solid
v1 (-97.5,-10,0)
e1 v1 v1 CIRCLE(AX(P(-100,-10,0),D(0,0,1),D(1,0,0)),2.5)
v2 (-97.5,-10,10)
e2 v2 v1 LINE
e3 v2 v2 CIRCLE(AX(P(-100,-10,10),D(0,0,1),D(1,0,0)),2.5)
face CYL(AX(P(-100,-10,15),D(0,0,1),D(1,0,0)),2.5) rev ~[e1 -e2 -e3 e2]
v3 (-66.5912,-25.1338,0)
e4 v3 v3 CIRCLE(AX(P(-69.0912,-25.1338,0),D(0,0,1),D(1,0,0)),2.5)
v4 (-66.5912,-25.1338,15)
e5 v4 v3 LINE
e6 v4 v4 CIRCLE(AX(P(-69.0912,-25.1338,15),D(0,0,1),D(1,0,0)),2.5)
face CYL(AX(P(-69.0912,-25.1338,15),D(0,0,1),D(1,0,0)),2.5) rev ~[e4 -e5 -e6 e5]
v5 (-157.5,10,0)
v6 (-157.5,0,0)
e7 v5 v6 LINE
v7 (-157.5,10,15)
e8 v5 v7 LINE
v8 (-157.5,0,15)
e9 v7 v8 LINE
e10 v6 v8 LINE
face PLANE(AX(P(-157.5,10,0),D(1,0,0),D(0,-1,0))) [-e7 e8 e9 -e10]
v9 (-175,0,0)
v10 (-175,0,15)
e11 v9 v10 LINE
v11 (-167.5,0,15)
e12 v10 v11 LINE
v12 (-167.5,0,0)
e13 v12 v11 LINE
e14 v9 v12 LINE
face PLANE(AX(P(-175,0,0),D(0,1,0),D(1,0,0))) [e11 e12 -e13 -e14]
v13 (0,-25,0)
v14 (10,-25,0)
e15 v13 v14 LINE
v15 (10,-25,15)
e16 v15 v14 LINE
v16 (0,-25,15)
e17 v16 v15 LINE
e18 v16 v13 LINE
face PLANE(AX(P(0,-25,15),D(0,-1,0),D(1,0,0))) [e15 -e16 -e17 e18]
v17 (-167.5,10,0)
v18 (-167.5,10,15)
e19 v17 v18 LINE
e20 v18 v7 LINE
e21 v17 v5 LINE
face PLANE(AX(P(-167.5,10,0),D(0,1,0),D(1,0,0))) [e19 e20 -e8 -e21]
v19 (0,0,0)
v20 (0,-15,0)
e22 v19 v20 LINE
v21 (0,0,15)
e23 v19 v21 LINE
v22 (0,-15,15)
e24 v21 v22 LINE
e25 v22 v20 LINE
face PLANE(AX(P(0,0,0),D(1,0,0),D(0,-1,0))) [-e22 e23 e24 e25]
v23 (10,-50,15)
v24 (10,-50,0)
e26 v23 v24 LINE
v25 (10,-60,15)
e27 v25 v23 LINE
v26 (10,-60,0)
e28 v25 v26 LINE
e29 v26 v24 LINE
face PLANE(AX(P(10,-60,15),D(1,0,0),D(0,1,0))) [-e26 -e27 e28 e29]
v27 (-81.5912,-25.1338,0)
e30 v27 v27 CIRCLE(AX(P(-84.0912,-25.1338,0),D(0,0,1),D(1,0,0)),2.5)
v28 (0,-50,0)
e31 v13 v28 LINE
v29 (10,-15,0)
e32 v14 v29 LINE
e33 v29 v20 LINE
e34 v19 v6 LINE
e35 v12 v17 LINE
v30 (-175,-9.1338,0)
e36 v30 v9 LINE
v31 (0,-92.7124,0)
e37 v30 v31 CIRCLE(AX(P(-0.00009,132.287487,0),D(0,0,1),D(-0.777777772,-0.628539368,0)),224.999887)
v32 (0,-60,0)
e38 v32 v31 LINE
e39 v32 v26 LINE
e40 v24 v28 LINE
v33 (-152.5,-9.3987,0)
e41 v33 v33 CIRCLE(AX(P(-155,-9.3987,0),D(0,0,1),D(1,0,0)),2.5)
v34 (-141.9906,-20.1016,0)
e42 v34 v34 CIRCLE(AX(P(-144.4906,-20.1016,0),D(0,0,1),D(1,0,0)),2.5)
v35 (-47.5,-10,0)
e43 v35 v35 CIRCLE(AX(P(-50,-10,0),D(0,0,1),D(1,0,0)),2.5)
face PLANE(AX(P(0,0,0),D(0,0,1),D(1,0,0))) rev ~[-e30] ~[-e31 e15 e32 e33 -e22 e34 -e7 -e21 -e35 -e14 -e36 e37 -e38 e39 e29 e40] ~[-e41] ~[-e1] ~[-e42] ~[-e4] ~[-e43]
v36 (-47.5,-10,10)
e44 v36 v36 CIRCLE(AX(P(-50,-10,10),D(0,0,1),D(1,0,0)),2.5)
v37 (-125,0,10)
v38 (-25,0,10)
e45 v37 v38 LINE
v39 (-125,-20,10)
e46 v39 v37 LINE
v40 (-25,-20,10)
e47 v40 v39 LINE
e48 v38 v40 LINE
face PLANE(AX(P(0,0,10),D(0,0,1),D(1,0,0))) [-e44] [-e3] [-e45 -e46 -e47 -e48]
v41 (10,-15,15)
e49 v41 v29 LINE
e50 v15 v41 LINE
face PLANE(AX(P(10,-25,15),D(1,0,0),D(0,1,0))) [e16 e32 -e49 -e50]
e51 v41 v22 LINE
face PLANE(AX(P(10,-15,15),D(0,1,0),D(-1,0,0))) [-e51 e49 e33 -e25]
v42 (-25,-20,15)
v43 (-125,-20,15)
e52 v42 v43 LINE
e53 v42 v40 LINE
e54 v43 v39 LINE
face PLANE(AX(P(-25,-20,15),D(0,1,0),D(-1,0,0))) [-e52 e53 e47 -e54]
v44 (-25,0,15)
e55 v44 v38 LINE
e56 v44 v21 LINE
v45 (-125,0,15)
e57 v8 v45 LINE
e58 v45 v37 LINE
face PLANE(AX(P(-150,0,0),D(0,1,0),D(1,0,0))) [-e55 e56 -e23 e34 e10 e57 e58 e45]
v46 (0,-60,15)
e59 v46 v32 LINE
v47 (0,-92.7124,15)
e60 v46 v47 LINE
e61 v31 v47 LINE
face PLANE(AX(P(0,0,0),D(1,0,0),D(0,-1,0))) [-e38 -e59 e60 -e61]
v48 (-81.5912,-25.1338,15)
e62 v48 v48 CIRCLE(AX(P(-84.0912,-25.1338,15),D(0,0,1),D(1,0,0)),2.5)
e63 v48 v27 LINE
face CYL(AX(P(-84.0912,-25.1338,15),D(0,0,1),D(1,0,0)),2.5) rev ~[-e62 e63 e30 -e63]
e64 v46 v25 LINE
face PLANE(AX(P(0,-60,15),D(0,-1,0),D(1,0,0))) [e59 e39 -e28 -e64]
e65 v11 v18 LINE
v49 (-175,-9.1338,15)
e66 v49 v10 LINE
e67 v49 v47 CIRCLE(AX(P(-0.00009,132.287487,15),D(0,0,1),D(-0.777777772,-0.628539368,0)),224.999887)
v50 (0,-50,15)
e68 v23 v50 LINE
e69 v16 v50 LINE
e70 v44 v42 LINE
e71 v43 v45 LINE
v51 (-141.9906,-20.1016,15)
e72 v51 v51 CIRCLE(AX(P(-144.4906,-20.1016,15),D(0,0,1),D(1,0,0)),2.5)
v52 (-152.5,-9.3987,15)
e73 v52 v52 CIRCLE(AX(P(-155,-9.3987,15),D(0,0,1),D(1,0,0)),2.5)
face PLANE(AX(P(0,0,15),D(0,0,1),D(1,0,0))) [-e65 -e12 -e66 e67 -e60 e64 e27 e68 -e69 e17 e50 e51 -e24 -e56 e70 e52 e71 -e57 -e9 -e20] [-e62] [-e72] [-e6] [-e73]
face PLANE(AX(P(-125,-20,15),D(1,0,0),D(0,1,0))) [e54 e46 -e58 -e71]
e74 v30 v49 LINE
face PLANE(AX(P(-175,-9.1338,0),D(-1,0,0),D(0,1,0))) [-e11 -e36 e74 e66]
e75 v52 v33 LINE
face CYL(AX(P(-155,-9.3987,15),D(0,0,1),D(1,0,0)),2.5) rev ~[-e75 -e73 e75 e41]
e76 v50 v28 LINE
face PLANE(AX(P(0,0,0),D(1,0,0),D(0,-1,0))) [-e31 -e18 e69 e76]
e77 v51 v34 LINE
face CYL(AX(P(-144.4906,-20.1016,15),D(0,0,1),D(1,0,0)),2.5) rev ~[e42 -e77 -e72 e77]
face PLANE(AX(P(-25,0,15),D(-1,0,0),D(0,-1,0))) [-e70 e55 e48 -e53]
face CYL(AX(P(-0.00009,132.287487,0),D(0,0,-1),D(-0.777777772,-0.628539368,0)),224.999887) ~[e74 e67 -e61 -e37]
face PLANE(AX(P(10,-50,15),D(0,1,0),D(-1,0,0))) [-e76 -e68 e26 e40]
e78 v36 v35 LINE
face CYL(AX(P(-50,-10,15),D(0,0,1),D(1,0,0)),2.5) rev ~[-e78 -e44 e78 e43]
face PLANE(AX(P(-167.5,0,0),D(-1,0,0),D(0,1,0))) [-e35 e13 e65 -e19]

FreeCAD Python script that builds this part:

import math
import FreeCAD as App
import Part
import Sketcher

doc = App.newDocument("Part")
body = doc.addObject("PartDesign::Body", "Body")

sketch1 = doc.addObject("Sketcher::SketchObject", "Sketch")
body.addObject(sketch1)
sketch1.AttachmentSupport = (doc.XY_Plane, [""])
sketch1.MapMode = "FlatFace"
sketch1.addGeometry(Part.LineSegment(App.Vector(0, 0, 0), App.Vector(-158, 0, 0)), False)
sketch1.addGeometry(Part.LineSegment(App.Vector(-158, 0, 0), App.Vector(-158, 10, 0)), False)
sketch1.addGeometry(Part.LineSegment(App.Vector(-158, 10, 0), App.Vector(-168, 10, 0)), False)
sketch1.addGeometry(Part.LineSegment(App.Vector(-168, 10, 0), App.Vector(-168, 0, 0)), False)
sketch1.addGeometry(Part.LineSegment(App.Vector(-168, 0, 0), App.Vector(-175, 0, 0)), False)
sketch1.addGeometry(Part.LineSegment(App.Vector(-175, 0, 0), App.Vector(-175, -9, 0)), False)
sketch1.addGeometry(Part.ArcOfCircle(Part.Circle(App.Vector(0, 132, 0), App.Vector(0, 0, 1), 225), math.radians(-141), math.radians(-90)), False)
sketch1.addGeometry(Part.LineSegment(App.Vector(0, -93, 0), App.Vector(0, 0, 0)), False)
sketch1.addConstraint(Sketcher.Constraint("Coincident", 0, 2, 1, 1))
sketch1.addConstraint(Sketcher.Constraint("Coincident", 1, 2, 2, 1))
sketch1.addConstraint(Sketcher.Constraint("Coincident", 2, 2, 3, 1))
sketch1.addConstraint(Sketcher.Constraint("Coincident", 3, 2, 4, 1))
sketch1.addConstraint(Sketcher.Constraint("Coincident", 4, 2, 5, 1))
sketch1.addConstraint(Sketcher.Constraint("Coincident", 5, 2, 6, 1))
sketch1.addConstraint(Sketcher.Constraint("Coincident", 6, 2, 7, 1))
sketch1.addConstraint(Sketcher.Constraint("Coincident", 7, 2, 0, 1))
sketch1.addConstraint(Sketcher.Constraint("Horizontal", 0))
sketch1.addConstraint(Sketcher.Constraint("Vertical", 1))
sketch1.addConstraint(Sketcher.Constraint("Horizontal", 2))
sketch1.addConstraint(Sketcher.Constraint("Vertical", 3))
sketch1.addConstraint(Sketcher.Constraint("Horizontal", 4))
sketch1.addConstraint(Sketcher.Constraint("Vertical", 5))
sketch1.addConstraint(Sketcher.Constraint("Vertical", 7))
sketch1.addConstraint(Sketcher.Constraint("Coincident", 7, 2, -1, 1))
sketch1.addConstraint(Sketcher.Constraint("PointOnObject", 6, 3, -2))
sketch1.addConstraint(Sketcher.Constraint("PointOnObject", 3, 2, -1))
sketch1.addConstraint(Sketcher.Constraint("Equal", 2, 1))
sketch1.addConstraint(Sketcher.Constraint("Radius", 6, 225.0))
sketch1.addConstraint(Sketcher.Constraint("DistanceX", 2, 2, 2, 1, 10.0))
sketch1.addConstraint(Sketcher.Constraint("DistanceX", 4, 2, 4, 1, 7.5))
sketch1.addConstraint(Sketcher.Constraint("DistanceX", 0, 2, 0, 1, 157.5))
sketch1.addConstraint(Sketcher.Constraint("DistanceY", 5, 2, 5, 1, 9.1338))
pad1 = doc.addObject("PartDesign::Pad", "Pad")
body.addObject(pad1)
pad1.Profile = sketch1
pad1.Length = 15

sketch2 = doc.addObject("Sketcher::SketchObject", "Sketch001")
body.addObject(sketch2)
sketch2.AttachmentSupport = (doc.XY_Plane, [""])
sketch2.MapMode = "FlatFace"
sketch2.AttachmentOffset = App.Placement(App.Vector(0, 0, 15), App.Rotation())
sketch2.addGeometry(Part.LineSegment(App.Vector(10, -25, 0), App.Vector(10, -15, 0)), False)
sketch2.addGeometry(Part.LineSegment(App.Vector(10, -15, 0), App.Vector(0, -15, 0)), False)
sketch2.addGeometry(Part.LineSegment(App.Vector(0, -15, 0), App.Vector(0, -25, 0)), False)
sketch2.addGeometry(Part.LineSegment(App.Vector(0, -25, 0), App.Vector(10, -25, 0)), False)
sketch2.addGeometry(Part.LineSegment(App.Vector(10, -60, 0), App.Vector(10, -50, 0)), False)
sketch2.addGeometry(Part.LineSegment(App.Vector(10, -50, 0), App.Vector(0, -50, 0)), False)
sketch2.addGeometry(Part.LineSegment(App.Vector(0, -50, 0), App.Vector(0, -60, 0)), False)
sketch2.addGeometry(Part.LineSegment(App.Vector(0, -60, 0), App.Vector(10, -60, 0)), False)
sketch2.addConstraint(Sketcher.Constraint("Coincident", 0, 2, 1, 1))
sketch2.addConstraint(Sketcher.Constraint("Coincident", 1, 2, 2, 1))
sketch2.addConstraint(Sketcher.Constraint("Coincident", 2, 2, 3, 1))
sketch2.addConstraint(Sketcher.Constraint("Coincident", 3, 2, 0, 1))
sketch2.addConstraint(Sketcher.Constraint("Coincident", 4, 2, 5, 1))
sketch2.addConstraint(Sketcher.Constraint("Coincident", 5, 2, 6, 1))
sketch2.addConstraint(Sketcher.Constraint("Coincident", 6, 2, 7, 1))
sketch2.addConstraint(Sketcher.Constraint("Coincident", 7, 2, 4, 1))
sketch2.addConstraint(Sketcher.Constraint("Vertical", 0))
sketch2.addConstraint(Sketcher.Constraint("Horizontal", 1))
sketch2.addConstraint(Sketcher.Constraint("Vertical", 2))
sketch2.addConstraint(Sketcher.Constraint("Horizontal", 3))
sketch2.addConstraint(Sketcher.Constraint("Vertical", 4))
sketch2.addConstraint(Sketcher.Constraint("Horizontal", 5))
sketch2.addConstraint(Sketcher.Constraint("Vertical", 6))
sketch2.addConstraint(Sketcher.Constraint("Horizontal", 7))
sketch2.addConstraint(Sketcher.Constraint("PointOnObject", 1, 2, -2))
sketch2.addConstraint(Sketcher.Constraint("PointOnObject", 5, 2, -2))
sketch2.addConstraint(Sketcher.Constraint("Vertical", 3, 2, 4, 2))
sketch2.addConstraint(Sketcher.Constraint("Equal", 7, 0))
sketch2.addConstraint(Sketcher.Constraint("Equal", 2, 4))
sketch2.addConstraint(Sketcher.Constraint("DistanceX", 1, 2, 1, 1, 10.0))
sketch2.addConstraint(Sketcher.Constraint("DistanceY", 0, 2, -1, 1, 15.0))
sketch2.addConstraint(Sketcher.Constraint("DistanceY", 4, 2, 3, 2, 25.0))
pad2 = doc.addObject("PartDesign::Pad", "Pad001")
body.addObject(pad2)
pad2.Profile = sketch2
pad2.Length = 15
pad2.Reversed = True

sketch3 = doc.addObject("Sketcher::SketchObject", "Sketch002")
body.addObject(sketch3)
sketch3.AttachmentSupport = (doc.XY_Plane, [""])
sketch3.MapMode = "FlatFace"
sketch3.AttachmentOffset = App.Placement(App.Vector(0, 0, 15), App.Rotation())
sketch3.addGeometry(Part.Circle(App.Vector(-100, -10, 0), App.Vector(0, 0, 1), 2.5), False)
sketch3.addGeometry(Part.Circle(App.Vector(-50, -10, 0), App.Vector(0, 0, 1), 2.5), False)
sketch3.addConstraint(Sketcher.Constraint("Equal", 0, 1))
sketch3.addConstraint(Sketcher.Constraint("Horizontal", 0, 3, 1, 3))
sketch3.addConstraint(Sketcher.Constraint("Diameter", 0, 5.0))
sketch3.addConstraint(Sketcher.Constraint("DistanceX", 0, 3, -1, 1, 100.0))
sketch3.addConstraint(Sketcher.Constraint("DistanceY", 0, 3, -1, 1, 10.0))
sketch3.addConstraint(Sketcher.Constraint("DistanceX", 1, 3, -1, 1, 50.0))
pocket1 = doc.addObject("PartDesign::Pocket", "Pocket")
body.addObject(pocket1)
pocket1.Profile = sketch3
pocket1.Type = "ThroughAll"

sketch4 = doc.addObject("Sketcher::SketchObject", "Sketch003")
body.addObject(sketch4)
sketch4.AttachmentSupport = (doc.XY_Plane, [""])
sketch4.MapMode = "FlatFace"
sketch4.AttachmentOffset = App.Placement(App.Vector(0, 0, 15), App.Rotation())
sketch4.addGeometry(Part.LineSegment(App.Vector(-25, 0, 0), App.Vector(-125, 0, 0)), False)
sketch4.addGeometry(Part.LineSegment(App.Vector(-125, 0, 0), App.Vector(-125, -20, 0)), False)
sketch4.addGeometry(Part.LineSegment(App.Vector(-125, -20, 0), App.Vector(-25, -20, 0)), False)
sketch4.addGeometry(Part.LineSegment(App.Vector(-25, -20, 0), App.Vector(-25, 0, 0)), False)
sketch4.addConstraint(Sketcher.Constraint("Coincident", 0, 2, 1, 1))
sketch4.addConstraint(Sketcher.Constraint("Coincident", 1, 2, 2, 1))
sketch4.addConstraint(Sketcher.Constraint("Coincident", 2, 2, 3, 1))
sketch4.addConstraint(Sketcher.Constraint("Coincident", 3, 2, 0, 1))
sketch4.addConstraint(Sketcher.Constraint("Horizontal", 0))
sketch4.addConstraint(Sketcher.Constraint("Vertical", 1))
sketch4.addConstraint(Sketcher.Constraint("Horizontal", 2))
sketch4.addConstraint(Sketcher.Constraint("Vertical", 3))
sketch4.addConstraint(Sketcher.Constraint("PointOnObject", 0, 2, -1))
sketch4.addConstraint(Sketcher.Constraint("DistanceX", 0, 2, 0, 1, 100.0))
sketch4.addConstraint(Sketcher.Constraint("DistanceY", 1, 2, 1, 1, 20.0))
sketch4.addConstraint(Sketcher.Constraint("DistanceX", 2, 2, -1, 1, 25.0))
pocket2 = doc.addObject("PartDesign::Pocket", "Pocket001")
body.addObject(pocket2)
pocket2.Profile = sketch4
pocket2.Length = 5

sketch5 = doc.addObject("Sketcher::SketchObject", "Sketch004")
body.addObject(sketch5)
sketch5.AttachmentSupport = (doc.XY_Plane, [""])
sketch5.MapMode = "FlatFace"
sketch5.AttachmentOffset = App.Placement(App.Vector(0, 0, 15), App.Rotation())
sketch5.addGeometry(Part.Circle(App.Vector(-155, -9.4, 0), App.Vector(0, 0, 1), 2.5), False)
sketch5.addGeometry(Part.Circle(App.Vector(-144.5, -20.1, 0), App.Vector(0, 0, 1), 2.5), False)
sketch5.addConstraint(Sketcher.Constraint("Equal", 0, 1))
sketch5.addConstraint(Sketcher.Constraint("Diameter", 0, 5.0))
sketch5.addConstraint(Sketcher.Constraint("DistanceX", 0, 3, -1, 1, 155.0))
sketch5.addConstraint(Sketcher.Constraint("DistanceY", 1, 3, 0, 3, 10.703))
sketch5.addConstraint(Sketcher.Constraint("DistanceY", 0, 3, -1, 1, 9.3987))
sketch5.addConstraint(Sketcher.Constraint("DistanceX", 1, 3, -1, 1, 144.4906))
pocket3 = doc.addObject("PartDesign::Pocket", "Pocket002")
body.addObject(pocket3)
pocket3.Profile = sketch5
pocket3.Type = "ThroughAll"

sketch6 = doc.addObject("Sketcher::SketchObject", "Sketch005")
body.addObject(sketch6)
sketch6.AttachmentSupport = (doc.XY_Plane, [""])
sketch6.MapMode = "FlatFace"
sketch6.AttachmentOffset = App.Placement(App.Vector(0, 0, 15), App.Rotation())
sketch6.addGeometry(Part.Circle(App.Vector(-84.1, -25.1, 0), App.Vector(0, 0, 1), 2.5), False)
sketch6.addGeometry(Part.Circle(App.Vector(-69.1, -25.1, 0), App.Vector(0, 0, 1), 2.5), False)
sketch6.addConstraint(Sketcher.Constraint("Equal", 0, 1))
sketch6.addConstraint(Sketcher.Constraint("Horizontal", 0, 3, 1, 3))
sketch6.addConstraint(Sketcher.Constraint("Diameter", 0, 5.0))
sketch6.addConstraint(Sketcher.Constraint("DistanceX", 0, 3, 1, 3, 15.0))
sketch6.addConstraint(Sketcher.Constraint("DistanceX", 1, 3, -1, 1, 69.0912))
sketch6.addConstraint(Sketcher.Constraint("DistanceY", 0, 3, -1, 1, 25.1338))
pocket4 = doc.addObject("PartDesign::Pocket", "Pocket003")
body.addObject(pocket4)
pocket4.Profile = sketch6
pocket4.Type = "ThroughAll"

doc.recompute()
